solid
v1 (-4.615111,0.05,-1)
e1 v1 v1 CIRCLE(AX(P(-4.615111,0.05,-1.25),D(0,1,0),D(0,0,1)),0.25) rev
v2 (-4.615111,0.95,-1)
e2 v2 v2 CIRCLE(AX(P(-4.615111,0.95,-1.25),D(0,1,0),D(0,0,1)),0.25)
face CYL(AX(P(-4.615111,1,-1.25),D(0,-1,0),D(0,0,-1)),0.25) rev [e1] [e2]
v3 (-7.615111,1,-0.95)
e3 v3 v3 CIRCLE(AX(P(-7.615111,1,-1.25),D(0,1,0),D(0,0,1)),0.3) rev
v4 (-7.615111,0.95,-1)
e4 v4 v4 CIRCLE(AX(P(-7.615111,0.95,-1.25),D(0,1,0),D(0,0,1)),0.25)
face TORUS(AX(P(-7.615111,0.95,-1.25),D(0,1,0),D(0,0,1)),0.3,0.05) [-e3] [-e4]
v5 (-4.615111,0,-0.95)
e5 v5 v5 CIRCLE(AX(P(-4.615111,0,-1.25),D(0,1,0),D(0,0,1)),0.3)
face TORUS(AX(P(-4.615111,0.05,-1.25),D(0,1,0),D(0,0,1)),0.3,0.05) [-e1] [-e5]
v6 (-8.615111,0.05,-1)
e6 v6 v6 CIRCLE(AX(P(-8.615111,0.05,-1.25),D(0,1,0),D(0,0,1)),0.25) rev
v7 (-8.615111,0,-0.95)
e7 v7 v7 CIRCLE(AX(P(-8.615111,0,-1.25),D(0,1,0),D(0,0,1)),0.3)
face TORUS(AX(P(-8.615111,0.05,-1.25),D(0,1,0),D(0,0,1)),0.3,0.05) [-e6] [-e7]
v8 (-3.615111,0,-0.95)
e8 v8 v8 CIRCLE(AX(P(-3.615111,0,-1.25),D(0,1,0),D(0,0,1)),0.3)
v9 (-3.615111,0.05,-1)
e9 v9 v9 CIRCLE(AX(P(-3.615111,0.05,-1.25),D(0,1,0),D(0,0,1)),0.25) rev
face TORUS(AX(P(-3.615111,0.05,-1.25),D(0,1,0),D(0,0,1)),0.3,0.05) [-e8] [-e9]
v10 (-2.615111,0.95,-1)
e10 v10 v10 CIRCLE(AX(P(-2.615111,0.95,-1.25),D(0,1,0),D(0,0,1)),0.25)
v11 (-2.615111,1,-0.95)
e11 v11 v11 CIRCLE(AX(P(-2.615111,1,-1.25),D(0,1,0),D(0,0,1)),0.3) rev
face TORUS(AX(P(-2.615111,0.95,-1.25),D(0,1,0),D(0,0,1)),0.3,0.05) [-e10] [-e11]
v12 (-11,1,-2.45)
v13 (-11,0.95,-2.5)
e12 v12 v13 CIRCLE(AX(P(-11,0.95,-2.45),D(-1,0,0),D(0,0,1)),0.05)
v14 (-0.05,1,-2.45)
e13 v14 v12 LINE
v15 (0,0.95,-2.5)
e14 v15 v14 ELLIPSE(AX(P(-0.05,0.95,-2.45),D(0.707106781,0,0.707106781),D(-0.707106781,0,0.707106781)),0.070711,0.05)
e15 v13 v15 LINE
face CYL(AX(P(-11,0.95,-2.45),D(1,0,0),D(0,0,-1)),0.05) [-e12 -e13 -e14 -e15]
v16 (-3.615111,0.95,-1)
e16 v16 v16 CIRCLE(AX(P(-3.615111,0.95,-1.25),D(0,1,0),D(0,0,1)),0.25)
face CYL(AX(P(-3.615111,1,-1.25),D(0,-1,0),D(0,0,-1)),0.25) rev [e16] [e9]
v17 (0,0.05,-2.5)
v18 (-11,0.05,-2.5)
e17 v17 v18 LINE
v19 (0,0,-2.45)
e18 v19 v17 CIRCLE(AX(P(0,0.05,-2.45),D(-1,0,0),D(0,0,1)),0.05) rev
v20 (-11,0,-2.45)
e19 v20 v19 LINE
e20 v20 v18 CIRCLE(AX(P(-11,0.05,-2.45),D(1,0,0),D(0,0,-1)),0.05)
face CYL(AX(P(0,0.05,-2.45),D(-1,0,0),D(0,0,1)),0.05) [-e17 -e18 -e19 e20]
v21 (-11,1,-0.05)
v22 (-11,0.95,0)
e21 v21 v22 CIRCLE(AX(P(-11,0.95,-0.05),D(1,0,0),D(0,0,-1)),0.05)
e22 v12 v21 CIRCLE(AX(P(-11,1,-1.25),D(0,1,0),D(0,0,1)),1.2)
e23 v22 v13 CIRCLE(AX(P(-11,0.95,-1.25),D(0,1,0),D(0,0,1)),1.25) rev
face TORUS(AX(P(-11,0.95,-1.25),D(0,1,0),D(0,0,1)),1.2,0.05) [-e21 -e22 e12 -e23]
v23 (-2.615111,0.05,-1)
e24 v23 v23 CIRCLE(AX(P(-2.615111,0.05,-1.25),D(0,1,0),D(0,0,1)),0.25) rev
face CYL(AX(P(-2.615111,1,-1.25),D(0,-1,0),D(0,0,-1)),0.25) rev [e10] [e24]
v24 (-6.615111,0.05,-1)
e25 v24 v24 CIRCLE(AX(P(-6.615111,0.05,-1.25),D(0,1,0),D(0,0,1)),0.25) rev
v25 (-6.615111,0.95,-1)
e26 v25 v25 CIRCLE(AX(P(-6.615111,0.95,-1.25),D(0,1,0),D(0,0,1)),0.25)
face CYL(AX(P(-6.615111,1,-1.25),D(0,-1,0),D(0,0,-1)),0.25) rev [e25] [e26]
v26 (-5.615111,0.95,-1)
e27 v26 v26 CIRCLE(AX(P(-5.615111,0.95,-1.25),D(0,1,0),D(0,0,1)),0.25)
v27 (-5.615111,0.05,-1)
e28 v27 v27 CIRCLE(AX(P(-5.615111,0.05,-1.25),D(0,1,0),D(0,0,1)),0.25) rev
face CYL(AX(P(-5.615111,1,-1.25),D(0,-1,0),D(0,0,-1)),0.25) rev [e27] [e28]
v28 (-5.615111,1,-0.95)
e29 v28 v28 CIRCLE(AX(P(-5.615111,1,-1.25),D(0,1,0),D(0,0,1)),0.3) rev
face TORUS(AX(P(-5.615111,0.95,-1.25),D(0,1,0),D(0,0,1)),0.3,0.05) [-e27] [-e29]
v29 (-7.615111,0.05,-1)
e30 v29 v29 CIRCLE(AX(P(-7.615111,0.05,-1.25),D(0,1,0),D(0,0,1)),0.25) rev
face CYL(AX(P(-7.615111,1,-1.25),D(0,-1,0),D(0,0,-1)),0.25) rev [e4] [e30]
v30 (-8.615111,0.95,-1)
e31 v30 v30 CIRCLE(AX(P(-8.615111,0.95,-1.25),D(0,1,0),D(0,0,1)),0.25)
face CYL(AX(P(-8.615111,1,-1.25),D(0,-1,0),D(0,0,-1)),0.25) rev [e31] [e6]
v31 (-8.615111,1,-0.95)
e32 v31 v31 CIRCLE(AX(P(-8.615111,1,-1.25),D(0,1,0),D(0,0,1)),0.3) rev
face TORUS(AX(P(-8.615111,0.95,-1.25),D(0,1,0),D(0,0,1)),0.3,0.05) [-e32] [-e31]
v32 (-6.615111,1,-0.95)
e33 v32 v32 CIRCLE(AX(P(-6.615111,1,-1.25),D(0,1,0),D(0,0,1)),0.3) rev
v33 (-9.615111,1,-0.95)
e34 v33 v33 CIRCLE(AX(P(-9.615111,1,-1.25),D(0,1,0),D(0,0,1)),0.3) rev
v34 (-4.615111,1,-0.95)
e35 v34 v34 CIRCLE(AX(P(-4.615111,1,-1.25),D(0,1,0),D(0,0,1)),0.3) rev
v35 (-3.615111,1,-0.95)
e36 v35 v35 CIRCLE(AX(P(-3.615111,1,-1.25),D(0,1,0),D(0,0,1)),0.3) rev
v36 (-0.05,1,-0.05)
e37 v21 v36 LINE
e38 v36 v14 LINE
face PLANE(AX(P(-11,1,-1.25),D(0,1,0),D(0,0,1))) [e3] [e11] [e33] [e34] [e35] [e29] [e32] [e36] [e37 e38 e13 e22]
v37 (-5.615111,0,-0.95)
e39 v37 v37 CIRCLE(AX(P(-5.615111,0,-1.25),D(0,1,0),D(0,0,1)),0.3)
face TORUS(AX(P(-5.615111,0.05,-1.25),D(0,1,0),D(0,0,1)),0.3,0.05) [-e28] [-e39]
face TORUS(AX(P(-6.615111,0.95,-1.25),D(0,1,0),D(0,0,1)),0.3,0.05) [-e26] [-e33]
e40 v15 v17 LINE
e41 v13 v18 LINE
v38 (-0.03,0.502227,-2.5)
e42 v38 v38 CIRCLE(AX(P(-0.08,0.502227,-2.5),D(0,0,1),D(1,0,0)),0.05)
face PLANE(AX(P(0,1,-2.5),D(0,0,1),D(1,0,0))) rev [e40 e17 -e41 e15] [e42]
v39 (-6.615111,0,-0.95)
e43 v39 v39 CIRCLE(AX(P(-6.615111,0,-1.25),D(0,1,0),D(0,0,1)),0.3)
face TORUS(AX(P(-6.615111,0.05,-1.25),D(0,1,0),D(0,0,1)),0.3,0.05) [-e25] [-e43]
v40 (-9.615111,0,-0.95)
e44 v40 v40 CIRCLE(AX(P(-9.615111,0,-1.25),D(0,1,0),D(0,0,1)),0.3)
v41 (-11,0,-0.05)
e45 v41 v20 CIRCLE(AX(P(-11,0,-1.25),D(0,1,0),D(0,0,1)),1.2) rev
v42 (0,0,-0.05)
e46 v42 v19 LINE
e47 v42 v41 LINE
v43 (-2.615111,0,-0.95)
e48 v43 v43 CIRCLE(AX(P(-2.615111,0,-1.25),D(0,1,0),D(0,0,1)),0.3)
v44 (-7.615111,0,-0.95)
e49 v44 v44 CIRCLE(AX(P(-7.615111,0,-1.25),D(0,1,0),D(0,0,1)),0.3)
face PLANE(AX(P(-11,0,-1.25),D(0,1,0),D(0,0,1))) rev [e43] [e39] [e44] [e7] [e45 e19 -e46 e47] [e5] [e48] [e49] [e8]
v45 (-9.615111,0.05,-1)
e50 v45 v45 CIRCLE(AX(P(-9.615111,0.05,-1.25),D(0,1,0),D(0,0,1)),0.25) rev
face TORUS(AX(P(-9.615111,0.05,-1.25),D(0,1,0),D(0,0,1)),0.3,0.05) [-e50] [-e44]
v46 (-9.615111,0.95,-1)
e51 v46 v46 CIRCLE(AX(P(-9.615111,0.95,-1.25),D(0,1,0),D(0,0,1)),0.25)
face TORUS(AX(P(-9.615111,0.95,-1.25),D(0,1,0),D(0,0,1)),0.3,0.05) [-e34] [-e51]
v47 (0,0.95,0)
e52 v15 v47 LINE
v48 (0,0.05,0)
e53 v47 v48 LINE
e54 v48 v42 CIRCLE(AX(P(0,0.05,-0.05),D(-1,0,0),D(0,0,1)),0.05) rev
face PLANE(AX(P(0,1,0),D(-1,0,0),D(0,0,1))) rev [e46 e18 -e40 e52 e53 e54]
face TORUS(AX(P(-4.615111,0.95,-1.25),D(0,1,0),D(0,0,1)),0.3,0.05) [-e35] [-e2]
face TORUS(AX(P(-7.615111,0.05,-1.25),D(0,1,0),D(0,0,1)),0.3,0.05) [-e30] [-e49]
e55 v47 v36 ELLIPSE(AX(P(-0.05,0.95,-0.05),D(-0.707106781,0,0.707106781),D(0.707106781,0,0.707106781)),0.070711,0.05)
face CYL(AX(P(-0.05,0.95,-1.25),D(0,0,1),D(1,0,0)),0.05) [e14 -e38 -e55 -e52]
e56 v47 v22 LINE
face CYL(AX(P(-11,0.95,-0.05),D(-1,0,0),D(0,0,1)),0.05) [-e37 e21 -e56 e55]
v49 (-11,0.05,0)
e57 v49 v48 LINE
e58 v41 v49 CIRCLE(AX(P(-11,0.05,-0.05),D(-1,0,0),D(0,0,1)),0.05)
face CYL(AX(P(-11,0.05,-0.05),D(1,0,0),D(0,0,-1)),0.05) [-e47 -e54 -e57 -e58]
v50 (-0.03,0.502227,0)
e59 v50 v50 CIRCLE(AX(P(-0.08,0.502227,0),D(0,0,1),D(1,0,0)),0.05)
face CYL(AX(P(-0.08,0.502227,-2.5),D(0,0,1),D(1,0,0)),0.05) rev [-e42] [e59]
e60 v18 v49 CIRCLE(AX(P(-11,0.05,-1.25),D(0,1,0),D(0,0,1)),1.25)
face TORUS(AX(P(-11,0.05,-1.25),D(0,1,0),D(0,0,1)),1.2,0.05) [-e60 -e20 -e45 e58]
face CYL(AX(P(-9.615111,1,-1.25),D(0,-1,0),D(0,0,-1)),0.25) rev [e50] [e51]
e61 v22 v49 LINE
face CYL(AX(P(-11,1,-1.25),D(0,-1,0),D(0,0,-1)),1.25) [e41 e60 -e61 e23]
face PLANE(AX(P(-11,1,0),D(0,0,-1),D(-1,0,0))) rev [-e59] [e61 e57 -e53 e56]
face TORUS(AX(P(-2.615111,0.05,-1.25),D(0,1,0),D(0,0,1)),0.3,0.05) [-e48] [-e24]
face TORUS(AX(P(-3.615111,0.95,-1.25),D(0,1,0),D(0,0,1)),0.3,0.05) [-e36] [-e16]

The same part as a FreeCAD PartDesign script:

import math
import FreeCAD as App
import Part
import Sketcher

V = App.Vector


def edges_at(feature, points):
    """Names of the edges that pass closest to the given points."""
    edges = feature.Shape.Edges
    near = lambda p: min(range(len(edges)), key=lambda i: edges[i].distToShape(Part.Vertex(*p))[0])
    return sorted({f"Edge{near(p) + 1}" for p in points})

doc = App.newDocument("Part")
params = doc.addObject("Spreadsheet::Sheet", "Params")
for row, (alias, value) in enumerate([
    ("sketch1_diameter", "0.5 mm"),
    ("sketch1_width", "11 mm"),
    ("sketch1_radius", "1.25 mm"),
    ("pad1_length", "1 mm"),
    ("fillet_radius", "0.05 mm"),
    ("sketch2_diameter", "0.1 mm"),
], start=1):
    params.set(f"A{row}", alias)
    params.set(f"B{row}", "=" + value)
    params.setAlias(f"B{row}", alias)

body = doc.addObject("PartDesign::Body", "Body")

# Sketch on XZ plane
sketch1 = body.newObject("Sketcher::SketchObject", "Sketch")
sketch1.AttachmentSupport = (doc.getObject("XZ_Plane"), [""])
sketch1.MapMode = "FlatFace"
sketch1.addGeometry([
    Part.LineSegment(V(0, -2.5, 0), V(-11, -2.5, 0)),  # 0
    Part.ArcOfCircle(Part.Circle(V(-11, -1.25, 0), V(0, 0, 1), 1.25), math.radians(90), math.radians(270)),  # 1
    Part.LineSegment(V(-11, 0, 0), V(0, 0, 0)),  # 2
    Part.LineSegment(V(0, 0, 0), V(0, -2.5, 0)),  # 3
    Part.Circle(V(-9.62, -1.25, 0), V(0, 0, 1), 0.25),  # 4
    Part.Circle(V(-8.62, -1.25, 0), V(0, 0, 1), 0.25),  # 5
    Part.Circle(V(-7.62, -1.25, 0), V(0, 0, 1), 0.25),  # 6
    Part.Circle(V(-6.62, -1.25, 0), V(0, 0, 1), 0.25),  # 7
    Part.Circle(V(-5.62, -1.25, 0), V(0, 0, 1), 0.25),  # 8
    Part.Circle(V(-4.62, -1.25, 0), V(0, 0, 1), 0.25),  # 9
    Part.Circle(V(-3.62, -1.25, 0), V(0, 0, 1), 0.25),  # 10
    Part.Circle(V(-2.62, -1.25, 0), V(0, 0, 1), 0.25),  # 11
], False)
sketch1.addConstraint([
    Sketcher.Constraint("Tangent", 0, 2, 1, 2),
    Sketcher.Constraint("Tangent", 1, 1, 2, 1),
    Sketcher.Constraint("Coincident", 2, 2, 3, 1),
    Sketcher.Constraint("Coincident", 3, 2, 0, 1),
    Sketcher.Constraint("Horizontal", 0),
    Sketcher.Constraint("Horizontal", 2),
    Sketcher.Constraint("Vertical", 3),
    Sketcher.Constraint("Coincident", 2, 2, -1, 1),
    Sketcher.Constraint("Equal", 4, 5),
    Sketcher.Constraint("Equal", 5, 6),
    Sketcher.Constraint("Equal", 6, 7),
    Sketcher.Constraint("Equal", 7, 8),
    Sketcher.Constraint("Equal", 8, 9),
    Sketcher.Constraint("Equal", 9, 10),
    Sketcher.Constraint("Equal", 10, 11),
    Sketcher.Constraint("Horizontal", 1, 3, 4, 3),
    Sketcher.Constraint("Horizontal", 4, 3, 5, 3),
    Sketcher.Constraint("Horizontal", 5, 3, 6, 3),
    Sketcher.Constraint("Horizontal", 6, 3, 7, 3),
    Sketcher.Constraint("Horizontal", 7, 3, 8, 3),
    Sketcher.Constraint("Horizontal", 8, 3, 9, 3),
    Sketcher.Constraint("Horizontal", 9, 3, 10, 3),
    Sketcher.Constraint("Horizontal", 10, 3, 11, 3),
    Sketcher.Constraint("Diameter", 4, 0.5),
    Sketcher.Constraint("DistanceX", 0, 2, 0, 1, 11.0),
    Sketcher.Constraint("Radius", 1, 1.25),
    Sketcher.Constraint("DistanceX", 4, 3, 5, 3, 1.0),
    Sketcher.Constraint("DistanceX", 5, 3, 6, 3, 1.0),
    Sketcher.Constraint("DistanceX", 6, 3, 7, 3, 1.0),
    Sketcher.Constraint("DistanceX", 7, 3, 8, 3, 1.0),
    Sketcher.Constraint("DistanceX", 8, 3, 9, 3, 1.0),
    Sketcher.Constraint("DistanceX", 9, 3, 10, 3, 1.0),
    Sketcher.Constraint("DistanceX", 10, 3, 11, 3, 1.0),
    Sketcher.Constraint("DistanceX", 4, 3, -1, 1, 9.615111),
])
sketch1.setExpression("Constraints[23]", "Params.sketch1_diameter")
sketch1.setExpression("Constraints[24]", "Params.sketch1_width")
sketch1.setExpression("Constraints[25]", "Params.sketch1_radius")
pad1 = body.newObject("PartDesign::Pad", "Pad")
pad1.Profile = sketch1
pad1.setExpression("Length", "Params.pad1_length")
pad1.Reversed = True
doc.recompute()

fillet = body.newObject("PartDesign::Fillet", "Fillet")
fillet.Base = (pad1, edges_at(pad1, [
    (-9.615, 0, -1.5),
    (-9.615, 1, -1.5),
    (-12.25, 1, -1.25),
    (-8.615, 0, -1.5),
    (-8.615, 1, -1.5),
    (-5.5, 1, 0),
    (-7.615, 0, -1.5),
    (-7.615, 1, -1.5),
    (-6.615, 0, -1.5),
    (-6.615, 1, -1.5),
    (-5.615, 0, -1.5),
    (-5.615, 1, -1.5),
    (-4.615, 0, -1.5),
    (-4.615, 1, -1.5),
    (-3.615, 0, -1.5),
    (-3.615, 1, -1.5),
    (-2.615, 0, -1.5),
    (-2.615, 1, -1.5),
    (0, 1, -1.25),
    (-5.5, 0, 0),
    (-12.25, 0, -1.25),
    (-5.5, 0, -2.5),
    (-5.5, 1, -2.5),
]))
fillet.setExpression("Radius", "Params.fillet_radius")

# Sketch on XY plane
sketch2 = body.newObject("Sketcher::SketchObject", "Sketch001")
sketch2.AttachmentSupport = (doc.getObject("XY_Plane"), [""])
sketch2.MapMode = "FlatFace"
sketch2.addGeometry(Part.Circle(V(-0.08, 0.5, 0), V(0, 0, 1), 0.05), False)
sketch2.addConstraint([
    Sketcher.Constraint("Diameter", 0, 0.1),
    Sketcher.Constraint("DistanceX", 0, 3, -1, 1, 0.08),
    Sketcher.Constraint("DistanceY", -1, 1, 0, 3, 0.502227),
])
sketch2.setExpression("Constraints[0]", "Params.sketch2_diameter")
pocket1 = body.newObject("PartDesign::Pocket", "Pocket")
pocket1.Profile = sketch2
pocket1.Type = "ThroughAll"

doc.recompute()
